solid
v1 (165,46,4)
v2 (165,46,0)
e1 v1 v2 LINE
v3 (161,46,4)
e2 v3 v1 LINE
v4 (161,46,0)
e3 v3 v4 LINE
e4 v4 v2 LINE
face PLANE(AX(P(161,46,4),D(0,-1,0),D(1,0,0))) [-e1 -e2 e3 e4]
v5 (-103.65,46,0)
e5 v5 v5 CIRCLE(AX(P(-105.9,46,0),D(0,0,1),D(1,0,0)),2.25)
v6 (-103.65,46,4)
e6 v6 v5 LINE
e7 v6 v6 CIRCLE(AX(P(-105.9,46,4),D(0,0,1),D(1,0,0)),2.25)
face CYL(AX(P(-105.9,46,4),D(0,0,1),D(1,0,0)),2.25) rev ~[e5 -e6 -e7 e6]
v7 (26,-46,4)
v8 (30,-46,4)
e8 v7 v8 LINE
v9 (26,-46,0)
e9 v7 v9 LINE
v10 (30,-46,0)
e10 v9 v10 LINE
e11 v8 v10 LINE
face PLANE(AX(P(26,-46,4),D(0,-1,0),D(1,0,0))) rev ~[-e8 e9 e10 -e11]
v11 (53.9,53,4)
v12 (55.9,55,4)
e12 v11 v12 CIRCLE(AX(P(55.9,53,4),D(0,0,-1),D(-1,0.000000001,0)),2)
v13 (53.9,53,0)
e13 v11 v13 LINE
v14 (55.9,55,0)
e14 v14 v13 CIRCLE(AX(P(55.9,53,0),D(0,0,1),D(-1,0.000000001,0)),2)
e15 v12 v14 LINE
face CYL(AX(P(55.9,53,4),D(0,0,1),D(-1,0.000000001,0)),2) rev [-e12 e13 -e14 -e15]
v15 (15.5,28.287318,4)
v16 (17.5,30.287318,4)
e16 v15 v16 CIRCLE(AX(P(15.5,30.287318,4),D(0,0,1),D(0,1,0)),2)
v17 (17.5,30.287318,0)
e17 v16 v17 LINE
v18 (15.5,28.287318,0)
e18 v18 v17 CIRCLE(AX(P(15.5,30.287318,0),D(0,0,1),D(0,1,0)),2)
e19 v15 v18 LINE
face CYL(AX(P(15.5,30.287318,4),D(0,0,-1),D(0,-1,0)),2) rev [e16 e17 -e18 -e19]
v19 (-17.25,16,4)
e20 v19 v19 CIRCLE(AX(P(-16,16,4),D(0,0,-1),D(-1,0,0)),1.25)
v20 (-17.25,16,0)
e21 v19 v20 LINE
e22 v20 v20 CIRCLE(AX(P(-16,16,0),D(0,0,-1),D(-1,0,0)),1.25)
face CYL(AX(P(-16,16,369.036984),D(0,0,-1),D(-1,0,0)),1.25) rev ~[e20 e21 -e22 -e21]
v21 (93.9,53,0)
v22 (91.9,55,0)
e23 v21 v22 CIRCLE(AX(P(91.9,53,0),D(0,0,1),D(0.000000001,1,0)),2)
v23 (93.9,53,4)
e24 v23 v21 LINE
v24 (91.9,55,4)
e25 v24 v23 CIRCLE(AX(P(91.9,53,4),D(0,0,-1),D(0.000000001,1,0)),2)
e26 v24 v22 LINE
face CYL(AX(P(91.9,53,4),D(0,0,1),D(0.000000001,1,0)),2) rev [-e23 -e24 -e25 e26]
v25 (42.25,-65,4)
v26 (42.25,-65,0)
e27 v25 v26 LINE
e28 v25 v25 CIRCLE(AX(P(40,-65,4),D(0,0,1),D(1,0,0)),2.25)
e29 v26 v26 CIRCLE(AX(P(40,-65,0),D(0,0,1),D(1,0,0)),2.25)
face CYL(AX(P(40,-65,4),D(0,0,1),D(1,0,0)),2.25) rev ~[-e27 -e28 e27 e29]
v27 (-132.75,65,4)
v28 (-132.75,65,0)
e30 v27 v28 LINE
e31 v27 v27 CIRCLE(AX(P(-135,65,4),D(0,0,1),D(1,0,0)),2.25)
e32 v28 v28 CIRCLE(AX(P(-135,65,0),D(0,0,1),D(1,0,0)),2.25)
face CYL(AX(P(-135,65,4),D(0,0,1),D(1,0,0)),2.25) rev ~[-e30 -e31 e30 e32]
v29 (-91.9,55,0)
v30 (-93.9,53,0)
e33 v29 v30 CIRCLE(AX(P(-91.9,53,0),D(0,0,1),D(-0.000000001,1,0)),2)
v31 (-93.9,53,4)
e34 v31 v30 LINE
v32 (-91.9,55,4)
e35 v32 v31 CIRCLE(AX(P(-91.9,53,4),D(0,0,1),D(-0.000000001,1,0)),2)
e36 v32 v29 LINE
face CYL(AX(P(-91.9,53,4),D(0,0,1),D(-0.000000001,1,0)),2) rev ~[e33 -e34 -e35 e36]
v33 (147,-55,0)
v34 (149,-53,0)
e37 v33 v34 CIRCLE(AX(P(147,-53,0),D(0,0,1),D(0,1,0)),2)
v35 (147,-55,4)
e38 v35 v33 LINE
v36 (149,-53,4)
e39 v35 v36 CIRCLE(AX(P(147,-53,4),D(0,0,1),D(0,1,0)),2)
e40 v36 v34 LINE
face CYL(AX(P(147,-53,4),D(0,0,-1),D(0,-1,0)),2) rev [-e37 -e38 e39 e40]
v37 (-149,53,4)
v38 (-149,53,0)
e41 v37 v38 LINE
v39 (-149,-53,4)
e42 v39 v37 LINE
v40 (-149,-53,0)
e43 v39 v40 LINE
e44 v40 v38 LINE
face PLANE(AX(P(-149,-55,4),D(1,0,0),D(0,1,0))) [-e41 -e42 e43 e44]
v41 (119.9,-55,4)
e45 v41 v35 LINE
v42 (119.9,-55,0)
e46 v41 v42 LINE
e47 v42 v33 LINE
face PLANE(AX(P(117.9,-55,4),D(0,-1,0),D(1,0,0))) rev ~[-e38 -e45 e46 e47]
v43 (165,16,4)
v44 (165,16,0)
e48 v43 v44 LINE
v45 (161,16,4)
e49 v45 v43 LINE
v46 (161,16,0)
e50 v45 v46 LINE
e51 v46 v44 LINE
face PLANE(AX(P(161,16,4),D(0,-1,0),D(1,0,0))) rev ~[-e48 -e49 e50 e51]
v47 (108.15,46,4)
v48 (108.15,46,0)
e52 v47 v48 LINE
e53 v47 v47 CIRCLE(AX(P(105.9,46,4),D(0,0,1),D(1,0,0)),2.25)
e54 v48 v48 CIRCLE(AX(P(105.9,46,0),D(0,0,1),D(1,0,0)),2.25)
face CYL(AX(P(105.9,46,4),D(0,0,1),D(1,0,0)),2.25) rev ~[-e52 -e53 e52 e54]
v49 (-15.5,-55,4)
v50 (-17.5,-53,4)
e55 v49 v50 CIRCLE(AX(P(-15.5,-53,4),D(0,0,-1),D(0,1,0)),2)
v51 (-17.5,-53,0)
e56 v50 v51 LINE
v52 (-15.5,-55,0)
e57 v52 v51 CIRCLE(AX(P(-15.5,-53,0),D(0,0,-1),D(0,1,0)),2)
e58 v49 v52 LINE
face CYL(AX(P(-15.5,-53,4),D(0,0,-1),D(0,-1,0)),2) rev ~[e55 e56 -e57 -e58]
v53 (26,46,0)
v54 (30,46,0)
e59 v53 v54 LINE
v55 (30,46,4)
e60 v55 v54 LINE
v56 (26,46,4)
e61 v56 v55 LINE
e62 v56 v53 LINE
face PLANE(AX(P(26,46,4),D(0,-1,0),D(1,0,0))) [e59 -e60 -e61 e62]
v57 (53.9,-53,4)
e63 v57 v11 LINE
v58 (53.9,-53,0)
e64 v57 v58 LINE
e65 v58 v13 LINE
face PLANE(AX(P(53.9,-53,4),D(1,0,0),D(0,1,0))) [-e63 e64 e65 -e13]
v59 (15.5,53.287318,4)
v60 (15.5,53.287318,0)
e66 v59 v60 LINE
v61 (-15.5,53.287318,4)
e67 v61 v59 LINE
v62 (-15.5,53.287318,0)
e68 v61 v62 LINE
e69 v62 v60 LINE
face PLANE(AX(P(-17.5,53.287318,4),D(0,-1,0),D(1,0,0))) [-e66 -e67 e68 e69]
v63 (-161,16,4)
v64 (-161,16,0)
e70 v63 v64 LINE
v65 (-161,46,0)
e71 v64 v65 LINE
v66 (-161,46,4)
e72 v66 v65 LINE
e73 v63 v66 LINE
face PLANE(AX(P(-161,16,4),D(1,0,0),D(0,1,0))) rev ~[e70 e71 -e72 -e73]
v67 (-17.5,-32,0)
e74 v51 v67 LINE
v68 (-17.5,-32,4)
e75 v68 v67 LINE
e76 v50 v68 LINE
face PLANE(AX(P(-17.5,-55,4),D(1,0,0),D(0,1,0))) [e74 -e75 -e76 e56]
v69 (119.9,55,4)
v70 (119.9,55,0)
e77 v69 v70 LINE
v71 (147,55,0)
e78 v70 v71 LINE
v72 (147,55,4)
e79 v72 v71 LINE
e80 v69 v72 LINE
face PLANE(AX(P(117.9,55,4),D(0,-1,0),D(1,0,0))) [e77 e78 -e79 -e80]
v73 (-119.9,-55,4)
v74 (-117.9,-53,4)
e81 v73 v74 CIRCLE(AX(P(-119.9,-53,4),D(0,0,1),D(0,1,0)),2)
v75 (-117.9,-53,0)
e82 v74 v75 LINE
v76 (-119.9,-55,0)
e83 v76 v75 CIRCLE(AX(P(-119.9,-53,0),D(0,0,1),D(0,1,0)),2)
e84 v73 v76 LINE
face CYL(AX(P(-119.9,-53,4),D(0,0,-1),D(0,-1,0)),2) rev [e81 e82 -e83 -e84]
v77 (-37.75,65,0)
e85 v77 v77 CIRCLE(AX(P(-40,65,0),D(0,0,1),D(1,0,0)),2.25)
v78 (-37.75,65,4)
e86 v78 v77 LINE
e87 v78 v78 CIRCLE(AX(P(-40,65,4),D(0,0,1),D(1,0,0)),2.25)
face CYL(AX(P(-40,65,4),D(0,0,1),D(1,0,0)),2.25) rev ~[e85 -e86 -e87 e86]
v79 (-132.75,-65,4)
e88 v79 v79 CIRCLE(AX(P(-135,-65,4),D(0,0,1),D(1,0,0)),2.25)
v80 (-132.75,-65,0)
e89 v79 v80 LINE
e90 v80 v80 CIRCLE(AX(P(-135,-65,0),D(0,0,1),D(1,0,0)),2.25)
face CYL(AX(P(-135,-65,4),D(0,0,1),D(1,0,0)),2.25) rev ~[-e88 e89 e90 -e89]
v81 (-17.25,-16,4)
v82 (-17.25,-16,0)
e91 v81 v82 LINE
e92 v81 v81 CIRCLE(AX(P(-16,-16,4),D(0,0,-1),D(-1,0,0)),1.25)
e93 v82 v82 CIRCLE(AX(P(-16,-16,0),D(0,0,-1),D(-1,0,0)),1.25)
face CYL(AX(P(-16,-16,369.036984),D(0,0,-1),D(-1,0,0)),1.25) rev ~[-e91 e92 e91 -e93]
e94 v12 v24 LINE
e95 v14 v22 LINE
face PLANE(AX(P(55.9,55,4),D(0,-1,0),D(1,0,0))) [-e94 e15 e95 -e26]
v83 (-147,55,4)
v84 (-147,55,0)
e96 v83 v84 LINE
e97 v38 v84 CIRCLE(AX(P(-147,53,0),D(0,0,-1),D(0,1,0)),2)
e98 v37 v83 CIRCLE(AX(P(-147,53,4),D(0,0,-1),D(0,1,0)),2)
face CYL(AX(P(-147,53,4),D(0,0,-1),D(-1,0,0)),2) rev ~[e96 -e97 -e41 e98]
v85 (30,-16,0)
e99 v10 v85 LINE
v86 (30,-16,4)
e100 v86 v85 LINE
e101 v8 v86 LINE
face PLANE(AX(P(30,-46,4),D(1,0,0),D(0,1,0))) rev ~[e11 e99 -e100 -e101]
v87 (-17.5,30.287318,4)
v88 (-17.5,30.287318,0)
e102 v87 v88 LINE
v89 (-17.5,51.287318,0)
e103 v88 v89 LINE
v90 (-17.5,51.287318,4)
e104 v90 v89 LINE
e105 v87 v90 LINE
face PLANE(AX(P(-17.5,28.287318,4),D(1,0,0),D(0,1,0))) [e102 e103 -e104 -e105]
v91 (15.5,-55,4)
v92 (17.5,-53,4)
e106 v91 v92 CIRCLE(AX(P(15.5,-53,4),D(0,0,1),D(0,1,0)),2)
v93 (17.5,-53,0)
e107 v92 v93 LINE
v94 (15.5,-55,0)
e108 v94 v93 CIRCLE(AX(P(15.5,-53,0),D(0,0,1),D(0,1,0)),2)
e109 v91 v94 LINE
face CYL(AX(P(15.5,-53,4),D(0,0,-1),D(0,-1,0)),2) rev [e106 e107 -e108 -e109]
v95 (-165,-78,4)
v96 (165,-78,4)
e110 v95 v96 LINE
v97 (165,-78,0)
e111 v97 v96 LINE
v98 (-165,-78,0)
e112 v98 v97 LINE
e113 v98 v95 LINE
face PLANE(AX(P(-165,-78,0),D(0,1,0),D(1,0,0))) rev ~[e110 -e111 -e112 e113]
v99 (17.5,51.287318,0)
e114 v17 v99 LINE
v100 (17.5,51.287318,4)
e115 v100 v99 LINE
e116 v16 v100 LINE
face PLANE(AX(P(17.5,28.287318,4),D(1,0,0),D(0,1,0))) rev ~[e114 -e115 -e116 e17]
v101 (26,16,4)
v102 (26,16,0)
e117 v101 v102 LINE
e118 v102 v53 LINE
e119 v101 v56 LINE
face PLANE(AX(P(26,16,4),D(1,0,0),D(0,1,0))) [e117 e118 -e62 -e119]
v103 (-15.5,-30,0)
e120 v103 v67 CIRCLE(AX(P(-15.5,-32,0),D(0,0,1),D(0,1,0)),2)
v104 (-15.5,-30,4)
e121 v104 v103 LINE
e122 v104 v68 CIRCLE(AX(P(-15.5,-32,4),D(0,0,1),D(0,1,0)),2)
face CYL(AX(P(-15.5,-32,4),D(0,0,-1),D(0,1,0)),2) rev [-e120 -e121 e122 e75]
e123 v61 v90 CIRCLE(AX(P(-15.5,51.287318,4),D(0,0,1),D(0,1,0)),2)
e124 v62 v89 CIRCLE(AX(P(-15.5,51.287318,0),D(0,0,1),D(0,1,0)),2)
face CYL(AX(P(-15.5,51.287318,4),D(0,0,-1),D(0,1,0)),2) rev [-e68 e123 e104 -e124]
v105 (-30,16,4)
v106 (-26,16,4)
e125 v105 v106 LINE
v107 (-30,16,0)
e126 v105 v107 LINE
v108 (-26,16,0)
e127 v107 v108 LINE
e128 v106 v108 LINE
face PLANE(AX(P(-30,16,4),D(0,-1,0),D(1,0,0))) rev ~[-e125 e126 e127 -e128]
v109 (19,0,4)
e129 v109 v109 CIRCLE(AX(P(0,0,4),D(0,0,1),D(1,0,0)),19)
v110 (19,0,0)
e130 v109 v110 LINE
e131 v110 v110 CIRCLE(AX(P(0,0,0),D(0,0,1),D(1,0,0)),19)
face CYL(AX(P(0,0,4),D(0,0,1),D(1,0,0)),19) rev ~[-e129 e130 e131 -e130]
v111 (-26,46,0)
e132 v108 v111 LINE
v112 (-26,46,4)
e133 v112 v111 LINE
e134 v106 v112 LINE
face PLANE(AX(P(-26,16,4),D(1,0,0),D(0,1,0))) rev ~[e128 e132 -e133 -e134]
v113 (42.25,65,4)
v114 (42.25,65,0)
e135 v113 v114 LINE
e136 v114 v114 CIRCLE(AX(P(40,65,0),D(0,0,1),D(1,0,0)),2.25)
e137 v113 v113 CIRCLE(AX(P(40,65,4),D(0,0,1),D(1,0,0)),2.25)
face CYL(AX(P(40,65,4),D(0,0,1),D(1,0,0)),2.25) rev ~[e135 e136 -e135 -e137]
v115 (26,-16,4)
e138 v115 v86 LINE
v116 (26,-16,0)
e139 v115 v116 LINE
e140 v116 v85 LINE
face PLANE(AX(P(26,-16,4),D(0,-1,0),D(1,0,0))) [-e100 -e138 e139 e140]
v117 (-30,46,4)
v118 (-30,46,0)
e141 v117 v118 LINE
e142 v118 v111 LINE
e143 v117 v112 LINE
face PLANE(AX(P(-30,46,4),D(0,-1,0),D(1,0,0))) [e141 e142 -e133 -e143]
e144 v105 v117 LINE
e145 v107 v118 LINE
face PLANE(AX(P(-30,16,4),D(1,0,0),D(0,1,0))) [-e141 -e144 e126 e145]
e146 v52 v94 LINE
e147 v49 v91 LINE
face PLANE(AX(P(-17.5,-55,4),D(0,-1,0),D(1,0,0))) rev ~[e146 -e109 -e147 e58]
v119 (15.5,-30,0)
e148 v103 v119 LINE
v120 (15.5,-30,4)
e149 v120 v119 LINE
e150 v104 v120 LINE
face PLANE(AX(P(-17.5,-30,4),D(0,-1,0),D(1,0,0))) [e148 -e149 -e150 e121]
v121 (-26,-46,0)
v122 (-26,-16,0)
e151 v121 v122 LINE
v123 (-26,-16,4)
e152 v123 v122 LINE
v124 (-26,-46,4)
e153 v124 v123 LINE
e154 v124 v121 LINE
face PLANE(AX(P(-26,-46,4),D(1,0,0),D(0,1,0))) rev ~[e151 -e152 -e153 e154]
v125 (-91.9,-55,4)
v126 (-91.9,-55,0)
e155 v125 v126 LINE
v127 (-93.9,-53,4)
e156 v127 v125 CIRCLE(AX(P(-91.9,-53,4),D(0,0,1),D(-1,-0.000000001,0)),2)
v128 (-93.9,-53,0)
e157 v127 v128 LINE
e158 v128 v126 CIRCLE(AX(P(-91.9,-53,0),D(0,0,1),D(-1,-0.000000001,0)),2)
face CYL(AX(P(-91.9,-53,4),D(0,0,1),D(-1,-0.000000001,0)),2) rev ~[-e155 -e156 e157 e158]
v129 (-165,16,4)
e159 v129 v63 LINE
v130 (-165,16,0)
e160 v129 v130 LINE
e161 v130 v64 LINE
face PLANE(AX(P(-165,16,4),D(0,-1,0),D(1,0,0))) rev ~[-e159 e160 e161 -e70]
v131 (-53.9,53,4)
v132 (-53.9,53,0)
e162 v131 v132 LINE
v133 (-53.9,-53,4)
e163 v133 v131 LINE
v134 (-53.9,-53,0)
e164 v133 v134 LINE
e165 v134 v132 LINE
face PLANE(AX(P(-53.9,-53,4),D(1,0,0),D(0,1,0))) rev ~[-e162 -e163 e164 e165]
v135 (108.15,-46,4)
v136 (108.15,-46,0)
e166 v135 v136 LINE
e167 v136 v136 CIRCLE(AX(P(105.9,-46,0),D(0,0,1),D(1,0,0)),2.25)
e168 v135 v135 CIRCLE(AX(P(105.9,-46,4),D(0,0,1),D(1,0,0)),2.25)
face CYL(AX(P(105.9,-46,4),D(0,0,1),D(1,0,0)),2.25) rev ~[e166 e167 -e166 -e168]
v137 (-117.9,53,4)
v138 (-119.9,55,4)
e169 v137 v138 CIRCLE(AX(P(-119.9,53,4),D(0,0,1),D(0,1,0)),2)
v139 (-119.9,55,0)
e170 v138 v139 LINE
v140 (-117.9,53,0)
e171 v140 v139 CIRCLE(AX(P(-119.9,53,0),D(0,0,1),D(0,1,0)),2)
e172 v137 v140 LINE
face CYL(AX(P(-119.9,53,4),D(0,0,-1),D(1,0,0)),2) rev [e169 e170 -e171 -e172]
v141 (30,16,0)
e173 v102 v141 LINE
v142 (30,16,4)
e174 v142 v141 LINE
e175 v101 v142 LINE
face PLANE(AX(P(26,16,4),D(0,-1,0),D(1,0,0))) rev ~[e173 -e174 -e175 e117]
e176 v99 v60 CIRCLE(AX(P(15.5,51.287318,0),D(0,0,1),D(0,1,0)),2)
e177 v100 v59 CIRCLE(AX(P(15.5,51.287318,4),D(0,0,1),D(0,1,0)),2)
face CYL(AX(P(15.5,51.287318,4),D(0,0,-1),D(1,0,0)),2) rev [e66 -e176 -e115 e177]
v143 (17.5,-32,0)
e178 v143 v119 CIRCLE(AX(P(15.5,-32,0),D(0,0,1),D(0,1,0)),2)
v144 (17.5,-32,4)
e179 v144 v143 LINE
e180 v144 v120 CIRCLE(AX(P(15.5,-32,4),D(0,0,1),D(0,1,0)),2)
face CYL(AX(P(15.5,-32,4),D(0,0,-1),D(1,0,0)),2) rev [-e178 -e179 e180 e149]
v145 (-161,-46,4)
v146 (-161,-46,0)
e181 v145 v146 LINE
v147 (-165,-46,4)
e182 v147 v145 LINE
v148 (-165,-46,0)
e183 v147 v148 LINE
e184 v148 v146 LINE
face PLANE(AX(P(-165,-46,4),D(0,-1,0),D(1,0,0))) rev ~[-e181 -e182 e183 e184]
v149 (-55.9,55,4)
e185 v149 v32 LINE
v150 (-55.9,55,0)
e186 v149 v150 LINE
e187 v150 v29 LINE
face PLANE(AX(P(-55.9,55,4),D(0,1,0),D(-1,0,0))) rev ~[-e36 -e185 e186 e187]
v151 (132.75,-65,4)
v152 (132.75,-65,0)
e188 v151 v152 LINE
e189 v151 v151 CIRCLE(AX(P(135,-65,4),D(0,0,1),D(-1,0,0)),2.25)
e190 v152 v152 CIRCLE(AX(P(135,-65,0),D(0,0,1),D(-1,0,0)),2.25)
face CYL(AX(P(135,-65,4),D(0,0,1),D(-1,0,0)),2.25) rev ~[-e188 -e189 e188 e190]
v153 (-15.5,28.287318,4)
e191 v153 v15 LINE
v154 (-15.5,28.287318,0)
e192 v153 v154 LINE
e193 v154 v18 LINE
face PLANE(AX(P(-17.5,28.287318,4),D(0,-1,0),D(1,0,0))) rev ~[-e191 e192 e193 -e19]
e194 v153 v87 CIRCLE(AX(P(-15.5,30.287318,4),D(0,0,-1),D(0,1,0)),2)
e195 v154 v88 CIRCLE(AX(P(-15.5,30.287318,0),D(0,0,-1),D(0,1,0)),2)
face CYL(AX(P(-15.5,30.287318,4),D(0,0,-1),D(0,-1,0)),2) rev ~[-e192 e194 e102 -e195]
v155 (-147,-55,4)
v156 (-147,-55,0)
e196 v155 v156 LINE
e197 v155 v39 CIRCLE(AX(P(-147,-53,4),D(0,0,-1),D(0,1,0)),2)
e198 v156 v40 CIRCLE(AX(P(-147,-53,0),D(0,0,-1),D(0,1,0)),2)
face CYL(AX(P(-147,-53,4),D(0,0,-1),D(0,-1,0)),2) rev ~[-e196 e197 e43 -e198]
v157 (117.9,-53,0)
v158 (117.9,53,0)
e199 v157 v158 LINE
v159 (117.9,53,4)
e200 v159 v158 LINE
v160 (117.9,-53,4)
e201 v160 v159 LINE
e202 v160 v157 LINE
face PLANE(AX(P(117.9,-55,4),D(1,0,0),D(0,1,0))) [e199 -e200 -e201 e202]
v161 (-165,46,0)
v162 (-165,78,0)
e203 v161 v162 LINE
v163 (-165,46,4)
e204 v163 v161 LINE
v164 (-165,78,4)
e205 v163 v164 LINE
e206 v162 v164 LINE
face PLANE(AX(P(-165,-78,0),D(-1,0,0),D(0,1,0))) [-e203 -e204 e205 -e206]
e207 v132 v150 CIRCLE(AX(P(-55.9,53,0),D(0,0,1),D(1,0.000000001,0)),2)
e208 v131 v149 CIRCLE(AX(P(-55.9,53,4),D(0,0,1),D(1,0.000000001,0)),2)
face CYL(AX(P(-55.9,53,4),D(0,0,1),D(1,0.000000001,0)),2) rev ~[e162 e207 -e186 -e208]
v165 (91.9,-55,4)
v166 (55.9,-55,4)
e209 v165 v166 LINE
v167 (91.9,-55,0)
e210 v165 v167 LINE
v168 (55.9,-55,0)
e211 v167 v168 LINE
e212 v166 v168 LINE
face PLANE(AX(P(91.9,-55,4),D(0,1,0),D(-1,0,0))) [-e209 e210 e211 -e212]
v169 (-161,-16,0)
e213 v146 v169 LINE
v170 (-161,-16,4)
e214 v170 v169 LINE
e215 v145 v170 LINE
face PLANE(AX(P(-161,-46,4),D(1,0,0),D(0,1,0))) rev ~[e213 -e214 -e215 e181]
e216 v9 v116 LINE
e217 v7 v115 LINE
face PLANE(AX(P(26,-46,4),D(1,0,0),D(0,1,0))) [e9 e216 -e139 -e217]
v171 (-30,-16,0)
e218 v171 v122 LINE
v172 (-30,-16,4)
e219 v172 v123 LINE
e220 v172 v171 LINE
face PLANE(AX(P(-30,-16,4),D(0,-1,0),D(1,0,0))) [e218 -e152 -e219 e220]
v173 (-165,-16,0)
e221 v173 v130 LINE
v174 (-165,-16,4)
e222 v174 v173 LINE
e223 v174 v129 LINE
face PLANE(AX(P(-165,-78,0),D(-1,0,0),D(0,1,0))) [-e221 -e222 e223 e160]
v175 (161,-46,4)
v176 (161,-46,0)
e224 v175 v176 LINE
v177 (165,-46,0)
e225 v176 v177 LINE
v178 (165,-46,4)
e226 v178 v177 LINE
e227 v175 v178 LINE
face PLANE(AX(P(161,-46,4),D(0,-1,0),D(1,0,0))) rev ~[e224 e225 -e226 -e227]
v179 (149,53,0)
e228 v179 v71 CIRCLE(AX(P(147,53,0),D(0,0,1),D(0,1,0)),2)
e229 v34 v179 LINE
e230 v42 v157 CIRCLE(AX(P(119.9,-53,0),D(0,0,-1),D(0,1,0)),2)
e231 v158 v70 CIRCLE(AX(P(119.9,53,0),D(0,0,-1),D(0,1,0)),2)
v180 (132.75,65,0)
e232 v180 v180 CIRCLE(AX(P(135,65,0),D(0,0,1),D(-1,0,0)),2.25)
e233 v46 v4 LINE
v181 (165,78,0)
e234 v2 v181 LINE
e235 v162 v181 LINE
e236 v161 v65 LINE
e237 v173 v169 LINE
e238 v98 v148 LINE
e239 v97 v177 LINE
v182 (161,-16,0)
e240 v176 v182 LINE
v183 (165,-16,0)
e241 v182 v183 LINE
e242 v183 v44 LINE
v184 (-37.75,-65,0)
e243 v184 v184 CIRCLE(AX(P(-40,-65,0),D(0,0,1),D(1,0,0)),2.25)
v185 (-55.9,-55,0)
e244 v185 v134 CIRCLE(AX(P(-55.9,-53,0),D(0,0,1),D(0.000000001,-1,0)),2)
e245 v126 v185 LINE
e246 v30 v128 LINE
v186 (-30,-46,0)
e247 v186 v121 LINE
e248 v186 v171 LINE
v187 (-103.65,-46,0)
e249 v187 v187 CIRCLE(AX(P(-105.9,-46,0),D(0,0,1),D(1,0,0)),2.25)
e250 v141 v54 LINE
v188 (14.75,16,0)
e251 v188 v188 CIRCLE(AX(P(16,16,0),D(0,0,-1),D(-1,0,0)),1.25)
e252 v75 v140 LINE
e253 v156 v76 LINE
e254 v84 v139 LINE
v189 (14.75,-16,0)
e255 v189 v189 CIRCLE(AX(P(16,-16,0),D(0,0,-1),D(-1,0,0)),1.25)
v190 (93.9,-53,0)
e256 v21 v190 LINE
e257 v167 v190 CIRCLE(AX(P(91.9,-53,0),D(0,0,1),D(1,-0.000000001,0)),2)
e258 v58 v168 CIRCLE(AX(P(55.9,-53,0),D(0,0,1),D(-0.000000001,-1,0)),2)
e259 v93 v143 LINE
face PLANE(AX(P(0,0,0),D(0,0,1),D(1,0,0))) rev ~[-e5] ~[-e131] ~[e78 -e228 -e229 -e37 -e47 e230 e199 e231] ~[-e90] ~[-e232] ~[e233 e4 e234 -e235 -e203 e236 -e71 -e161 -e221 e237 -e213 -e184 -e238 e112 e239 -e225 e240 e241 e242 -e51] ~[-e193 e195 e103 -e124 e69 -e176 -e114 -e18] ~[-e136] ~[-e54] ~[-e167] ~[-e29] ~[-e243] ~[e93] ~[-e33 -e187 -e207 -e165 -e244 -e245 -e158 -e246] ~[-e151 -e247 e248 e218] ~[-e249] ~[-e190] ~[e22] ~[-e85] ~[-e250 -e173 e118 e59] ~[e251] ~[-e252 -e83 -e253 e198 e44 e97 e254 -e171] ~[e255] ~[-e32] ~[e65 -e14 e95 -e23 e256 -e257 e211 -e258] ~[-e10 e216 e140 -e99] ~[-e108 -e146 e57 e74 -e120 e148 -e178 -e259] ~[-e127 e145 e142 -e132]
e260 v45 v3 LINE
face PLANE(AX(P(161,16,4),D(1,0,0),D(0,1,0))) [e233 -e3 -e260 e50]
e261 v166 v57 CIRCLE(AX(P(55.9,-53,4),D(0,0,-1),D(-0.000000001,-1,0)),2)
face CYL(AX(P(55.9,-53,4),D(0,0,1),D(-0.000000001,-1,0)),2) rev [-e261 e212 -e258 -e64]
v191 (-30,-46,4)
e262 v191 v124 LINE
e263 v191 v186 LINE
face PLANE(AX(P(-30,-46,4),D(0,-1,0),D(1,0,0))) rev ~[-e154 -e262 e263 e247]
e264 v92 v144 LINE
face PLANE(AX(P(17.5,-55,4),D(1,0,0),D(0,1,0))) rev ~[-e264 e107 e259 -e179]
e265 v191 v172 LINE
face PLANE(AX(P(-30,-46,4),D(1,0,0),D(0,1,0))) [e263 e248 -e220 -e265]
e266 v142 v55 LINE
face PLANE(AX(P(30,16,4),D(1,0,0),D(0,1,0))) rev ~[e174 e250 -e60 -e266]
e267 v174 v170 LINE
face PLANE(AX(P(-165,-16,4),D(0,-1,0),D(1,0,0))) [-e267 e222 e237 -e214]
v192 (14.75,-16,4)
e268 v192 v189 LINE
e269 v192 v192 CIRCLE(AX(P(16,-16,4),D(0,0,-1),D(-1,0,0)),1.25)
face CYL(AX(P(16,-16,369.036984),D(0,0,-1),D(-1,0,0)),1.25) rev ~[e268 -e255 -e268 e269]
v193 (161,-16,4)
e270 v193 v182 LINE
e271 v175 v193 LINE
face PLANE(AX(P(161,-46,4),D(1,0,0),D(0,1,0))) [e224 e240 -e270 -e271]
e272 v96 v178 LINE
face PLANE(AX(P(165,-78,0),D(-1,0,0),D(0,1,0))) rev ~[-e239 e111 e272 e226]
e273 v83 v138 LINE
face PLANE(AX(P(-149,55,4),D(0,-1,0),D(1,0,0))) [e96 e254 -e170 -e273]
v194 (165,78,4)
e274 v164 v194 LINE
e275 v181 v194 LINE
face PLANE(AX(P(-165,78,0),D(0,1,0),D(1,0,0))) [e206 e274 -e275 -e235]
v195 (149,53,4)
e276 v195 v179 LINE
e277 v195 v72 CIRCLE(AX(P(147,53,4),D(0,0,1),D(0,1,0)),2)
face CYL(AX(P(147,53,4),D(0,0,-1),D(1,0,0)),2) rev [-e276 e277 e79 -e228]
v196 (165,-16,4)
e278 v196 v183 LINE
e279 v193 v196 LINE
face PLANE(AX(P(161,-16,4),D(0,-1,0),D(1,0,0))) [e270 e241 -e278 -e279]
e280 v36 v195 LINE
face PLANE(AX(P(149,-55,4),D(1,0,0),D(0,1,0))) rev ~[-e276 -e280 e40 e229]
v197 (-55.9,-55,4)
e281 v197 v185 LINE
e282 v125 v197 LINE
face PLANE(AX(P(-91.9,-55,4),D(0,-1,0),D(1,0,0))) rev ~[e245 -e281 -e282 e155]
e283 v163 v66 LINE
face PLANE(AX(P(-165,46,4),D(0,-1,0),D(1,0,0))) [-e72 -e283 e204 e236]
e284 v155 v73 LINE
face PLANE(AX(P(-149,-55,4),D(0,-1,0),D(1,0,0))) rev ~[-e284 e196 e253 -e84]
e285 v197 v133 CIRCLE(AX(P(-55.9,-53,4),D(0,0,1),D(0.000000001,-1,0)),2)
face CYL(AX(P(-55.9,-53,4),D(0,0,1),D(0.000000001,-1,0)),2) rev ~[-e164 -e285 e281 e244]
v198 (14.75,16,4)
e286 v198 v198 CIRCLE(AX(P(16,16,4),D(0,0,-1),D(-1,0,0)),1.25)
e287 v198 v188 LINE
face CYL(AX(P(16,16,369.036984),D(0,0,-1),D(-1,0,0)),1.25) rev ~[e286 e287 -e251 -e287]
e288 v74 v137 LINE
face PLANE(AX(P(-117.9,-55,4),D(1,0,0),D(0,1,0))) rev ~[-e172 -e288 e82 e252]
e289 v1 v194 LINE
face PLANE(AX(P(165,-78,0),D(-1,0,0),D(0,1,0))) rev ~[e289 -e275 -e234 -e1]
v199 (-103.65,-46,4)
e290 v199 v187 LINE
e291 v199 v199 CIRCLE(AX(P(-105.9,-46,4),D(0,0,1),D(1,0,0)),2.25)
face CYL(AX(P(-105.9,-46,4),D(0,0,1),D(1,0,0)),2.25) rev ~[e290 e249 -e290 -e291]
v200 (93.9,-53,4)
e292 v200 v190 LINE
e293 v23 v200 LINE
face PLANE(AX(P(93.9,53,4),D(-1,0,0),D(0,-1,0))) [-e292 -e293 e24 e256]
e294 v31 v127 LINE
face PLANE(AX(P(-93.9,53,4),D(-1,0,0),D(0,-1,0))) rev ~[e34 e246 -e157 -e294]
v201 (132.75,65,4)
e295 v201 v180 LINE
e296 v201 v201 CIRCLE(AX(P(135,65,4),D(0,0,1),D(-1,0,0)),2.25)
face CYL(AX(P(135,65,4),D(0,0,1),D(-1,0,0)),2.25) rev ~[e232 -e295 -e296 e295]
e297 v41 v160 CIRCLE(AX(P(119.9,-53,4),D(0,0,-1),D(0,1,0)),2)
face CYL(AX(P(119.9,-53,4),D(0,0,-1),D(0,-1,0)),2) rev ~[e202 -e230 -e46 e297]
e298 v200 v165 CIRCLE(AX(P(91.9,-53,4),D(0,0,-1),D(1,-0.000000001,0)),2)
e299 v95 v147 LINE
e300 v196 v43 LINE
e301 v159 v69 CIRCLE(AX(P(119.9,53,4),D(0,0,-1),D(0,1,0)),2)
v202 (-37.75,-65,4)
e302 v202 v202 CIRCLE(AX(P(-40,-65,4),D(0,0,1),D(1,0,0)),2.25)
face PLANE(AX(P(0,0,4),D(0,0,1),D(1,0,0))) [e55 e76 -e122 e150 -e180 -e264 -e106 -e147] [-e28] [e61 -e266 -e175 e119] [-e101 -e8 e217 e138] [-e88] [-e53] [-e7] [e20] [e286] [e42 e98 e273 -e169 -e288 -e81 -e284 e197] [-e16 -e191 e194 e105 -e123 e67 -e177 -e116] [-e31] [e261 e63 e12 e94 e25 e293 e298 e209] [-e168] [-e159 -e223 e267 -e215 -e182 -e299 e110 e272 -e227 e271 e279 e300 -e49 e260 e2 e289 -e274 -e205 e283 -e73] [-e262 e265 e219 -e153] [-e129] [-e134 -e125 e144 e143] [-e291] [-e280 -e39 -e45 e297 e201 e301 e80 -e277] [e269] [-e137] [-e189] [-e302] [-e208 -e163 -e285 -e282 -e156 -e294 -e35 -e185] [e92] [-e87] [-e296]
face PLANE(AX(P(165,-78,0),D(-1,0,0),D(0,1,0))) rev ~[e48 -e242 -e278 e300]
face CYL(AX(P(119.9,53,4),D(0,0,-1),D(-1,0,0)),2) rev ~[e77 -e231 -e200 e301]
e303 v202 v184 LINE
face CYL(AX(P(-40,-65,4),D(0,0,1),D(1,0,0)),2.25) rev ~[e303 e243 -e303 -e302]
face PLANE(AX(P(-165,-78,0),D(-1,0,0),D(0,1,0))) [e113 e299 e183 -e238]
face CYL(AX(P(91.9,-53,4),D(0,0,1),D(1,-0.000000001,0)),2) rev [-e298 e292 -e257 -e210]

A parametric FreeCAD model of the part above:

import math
import FreeCAD as App
import Part
import Sketcher

V = App.Vector


def edges_at(feature, points):
    """Names of the edges that pass closest to the given points."""
    edges = feature.Shape.Edges
    near = lambda p: min(range(len(edges)), key=lambda i: edges[i].distToShape(Part.Vertex(*p))[0])
    return sorted({f"Edge{near(p) + 1}" for p in points})

doc = App.newDocument("Part")
body = doc.addObject("PartDesign::Body", "Body")

# Sketch on XY plane
sketch1 = body.newObject("Sketcher::SketchObject", "Sketch")
sketch1.AttachmentSupport = (doc.getObject("XY_Plane"), [""])
sketch1.MapMode = "FlatFace"
sketch1.addGeometry(Part.LineSegment(V(-165, 78, 0), V(-165, -78, 0)), False)
sketch1.addGeometry(Part.LineSegment(V(-165, -78, 0), V(165, -78, 0)), False)
sketch1.addGeometry(Part.LineSegment(V(165, -78, 0), V(165, 78, 0)), False)
sketch1.addGeometry(Part.LineSegment(V(165, 78, 0), V(-165, 78, 0)), False)
sketch1.addConstraint(Sketcher.Constraint("Coincident", 0, 2, 1, 1))
sketch1.addConstraint(Sketcher.Constraint("Coincident", 1, 2, 2, 1))
sketch1.addConstraint(Sketcher.Constraint("Coincident", 2, 2, 3, 1))
sketch1.addConstraint(Sketcher.Constraint("Coincident", 3, 2, 0, 1))
sketch1.addConstraint(Sketcher.Constraint("Vertical", 0))
sketch1.addConstraint(Sketcher.Constraint("Horizontal", 1))
sketch1.addConstraint(Sketcher.Constraint("Vertical", 2))
sketch1.addConstraint(Sketcher.Constraint("Horizontal", 3))
sketch1.addConstraint(Sketcher.Constraint("Symmetric", 0, 2, 2, 2, -1, 1))
sketch1.addConstraint(Sketcher.Constraint("DistanceX", 1, 1, 1, 2, 330.0))
sketch1.addConstraint(Sketcher.Constraint("DistanceY", 0, 2, 0, 1, 156.0))
pad1 = body.newObject("PartDesign::Pad", "Pad")
pad1.Profile = sketch1
pad1.Length = 4

# Sketch on XY plane
sketch2 = body.newObject("Sketcher::SketchObject", "Sketch001")
sketch2.AttachmentSupport = (doc.getObject("XY_Plane"), [""])
sketch2.MapMode = "FlatFace"
sketch2.AttachmentOffset = App.Placement(V(0, 0, 4), App.Rotation())
sketch2.addGeometry(Part.Circle(V(-105.9, 46, 0), V(0, 0, 1), 2.2), False)
sketch2.addGeometry(Part.Circle(V(-105.9, -46, 0), V(0, 0, 1), 2.2), False)
sketch2.addGeometry(Part.Circle(V(105.9, -46, 0), V(0, 0, 1), 2.2), False)
sketch2.addGeometry(Part.Circle(V(105.9, 46, 0), V(0, 0, 1), 2.2), False)
sketch2.addGeometry(Part.Circle(V(-40, 65, 0), V(0, 0, 1), 2.2), False)
sketch2.addGeometry(Part.Circle(V(40, 65, 0), V(0, 0, 1), 2.2), False)
sketch2.addGeometry(Part.Circle(V(-40, -65, 0), V(0, 0, 1), 2.2), False)
sketch2.addGeometry(Part.Circle(V(40, -65, 0), V(0, 0, 1), 2.2), False)
sketch2.addGeometry(Part.Circle(V(-135, -65, 0), V(0, 0, 1), 2.2), False)
sketch2.addGeometry(Part.Circle(V(-135, 65, 0), V(0, 0, 1), 2.2), False)
sketch2.addGeometry(Part.Circle(V(135, -65, 0), V(0, 0, 1), 2.2), False)
sketch2.addGeometry(Part.Circle(V(135, 65, 0), V(0, 0, 1), 2.2), False)
sketch2.addGeometry(Part.LineSegment(V(117.9, 55, 0), V(117.9, -55, 0)), False)
sketch2.addGeometry(Part.LineSegment(V(117.9, -55, 0), V(149, -55, 0)), False)
sketch2.addGeometry(Part.LineSegment(V(149, -55, 0), V(149, 55, 0)), False)
sketch2.addGeometry(Part.LineSegment(V(149, 55, 0), V(117.9, 55, 0)), False)
sketch2.addGeometry(Part.LineSegment(V(-149, 55, 0), V(-149, -55, 0)), False)
sketch2.addGeometry(Part.LineSegment(V(-149, -55, 0), V(-117.9, -55, 0)), False)
sketch2.addGeometry(Part.LineSegment(V(-117.9, -55, 0), V(-117.9, 55, 0)), False)
sketch2.addGeometry(Part.LineSegment(V(-117.9, 55, 0), V(-149, 55, 0)), False)
sketch2.addConstraint(Sketcher.Constraint("Coincident", 12, 2, 13, 1))
sketch2.addConstraint(Sketcher.Constraint("Coincident", 13, 2, 14, 1))
sketch2.addConstraint(Sketcher.Constraint("Coincident", 14, 2, 15, 1))
sketch2.addConstraint(Sketcher.Constraint("Coincident", 15, 2, 12, 1))
sketch2.addConstraint(Sketcher.Constraint("Coincident", 16, 2, 17, 1))
sketch2.addConstraint(Sketcher.Constraint("Coincident", 17, 2, 18, 1))
sketch2.addConstraint(Sketcher.Constraint("Coincident", 18, 2, 19, 1))
sketch2.addConstraint(Sketcher.Constraint("Coincident", 19, 2, 16, 1))
sketch2.addConstraint(Sketcher.Constraint("Vertical", 12))
sketch2.addConstraint(Sketcher.Constraint("Horizontal", 13))
sketch2.addConstraint(Sketcher.Constraint("Vertical", 14))
sketch2.addConstraint(Sketcher.Constraint("Horizontal", 15))
sketch2.addConstraint(Sketcher.Constraint("Vertical", 16))
sketch2.addConstraint(Sketcher.Constraint("Horizontal", 17))
sketch2.addConstraint(Sketcher.Constraint("Vertical", 18))
sketch2.addConstraint(Sketcher.Constraint("Horizontal", 19))
sketch2.addConstraint(Sketcher.Constraint("Equal", 0, 1))
sketch2.addConstraint(Sketcher.Constraint("Equal", 1, 2))
sketch2.addConstraint(Sketcher.Constraint("Equal", 2, 3))
sketch2.addConstraint(Sketcher.Constraint("Equal", 3, 4))
sketch2.addConstraint(Sketcher.Constraint("Equal", 4, 5))
sketch2.addConstraint(Sketcher.Constraint("Equal", 5, 6))
sketch2.addConstraint(Sketcher.Constraint("Equal", 6, 7))
sketch2.addConstraint(Sketcher.Constraint("Equal", 7, 8))
sketch2.addConstraint(Sketcher.Constraint("Equal", 8, 9))
sketch2.addConstraint(Sketcher.Constraint("Equal", 9, 10))
sketch2.addConstraint(Sketcher.Constraint("Equal", 10, 11))
sketch2.addConstraint(Sketcher.Constraint("Symmetric", 0, 3, 2, 3, -1, 1))
sketch2.addConstraint(Sketcher.Constraint("Symmetric", 1, 3, 3, 3, -1, 1))
sketch2.addConstraint(Sketcher.Constraint("Symmetric", 5, 3, 6, 3, -1, 1))
sketch2.addConstraint(Sketcher.Constraint("Symmetric", 4, 3, 7, 3, -1, 1))
sketch2.addConstraint(Sketcher.Constraint("Symmetric", 9, 3, 10, 3, -1, 1))
sketch2.addConstraint(Sketcher.Constraint("Symmetric", 8, 3, 11, 3, -1, 1))
sketch2.addConstraint(Sketcher.Constraint("Symmetric", 14, 2, 16, 2, -1, 1))
sketch2.addConstraint(Sketcher.Constraint("Symmetric", 12, 2, 18, 2, -1, 1))
sketch2.addConstraint(Sketcher.Constraint("Symmetric", 1, 3, 2, 3, -2))
sketch2.addConstraint(Sketcher.Constraint("Symmetric", 4, 3, 5, 3, -2))
sketch2.addConstraint(Sketcher.Constraint("Symmetric", 8, 3, 10, 3, -2))
sketch2.addConstraint(Sketcher.Constraint("Horizontal", 7, 3, 8, 3))
sketch2.addConstraint(Sketcher.Constraint("Horizontal", 13, 2, 16, 2))
sketch2.addConstraint(Sketcher.Constraint("Diameter", 0, 4.5))
sketch2.addConstraint(Sketcher.Constraint("DistanceY", 12, 2, 12, 1, 110.0))
sketch2.addConstraint(Sketcher.Constraint("DistanceX", 13, 1, 13, 2, 31.1))
sketch2.addConstraint(Sketcher.Constraint("DistanceY", -1, 1, 0, 3, 46.0))
sketch2.addConstraint(Sketcher.Constraint("DistanceX", 4, 3, -1, 1, 40.0))
sketch2.addConstraint(Sketcher.Constraint("DistanceY", -1, 1, 4, 3, 65.0))
sketch2.addConstraint(Sketcher.Constraint("DistanceX", 8, 3, -1, 1, 135.0))
sketch2.addConstraint(Sketcher.Constraint("DistanceX", -1, 1, 13, 2, 149.0))
sketch2.addConstraint(Sketcher.Constraint("DistanceX", 2, 3, 12, 2, 12.0))
pocket1 = body.newObject("PartDesign::Pocket", "Pocket")
pocket1.Profile = sketch2
pocket1.Type = "ThroughAll"

# Sketch on XY plane
sketch3 = body.newObject("Sketcher::SketchObject", "Sketch002")
sketch3.AttachmentSupport = (doc.getObject("XY_Plane"), [""])
sketch3.MapMode = "FlatFace"
sketch3.AttachmentOffset = App.Placement(V(0, 0, 4), App.Rotation())
sketch3.addGeometry(Part.Circle(V(16, -16, 0), V(0, 0, 1), 1.2), False)
sketch3.addGeometry(Part.Circle(V(0, 0, 0), V(0, 0, 1), 1.2), False)
sketch3.addGeometry(Part.Circle(V(16, 16, 0), V(0, 0, 1), 1.2), False)
sketch3.addGeometry(Part.Circle(V(-16, -16, 0), V(0, 0, 1), 1.2), False)
sketch3.addGeometry(Part.Circle(V(-16, 16, 0), V(0, 0, 1), 1.2), False)
sketch3.addConstraint(Sketcher.Constraint("Coincident", 1, 3, -1, 1))
sketch3.addConstraint(Sketcher.Constraint("Equal", 0, 1))
sketch3.addConstraint(Sketcher.Constraint("Equal", 1, 2))
sketch3.addConstraint(Sketcher.Constraint("Equal", 2, 3))
sketch3.addConstraint(Sketcher.Constraint("Equal", 3, 4))
sketch3.addConstraint(Sketcher.Constraint("Symmetric", 2, 3, 3, 3, -1, 1))
sketch3.addConstraint(Sketcher.Constraint("Symmetric", 0, 3, 4, 3, -1, 1))
sketch3.addConstraint(Sketcher.Constraint("Symmetric", 0, 3, 3, 3, -2))
sketch3.addConstraint(Sketcher.Constraint("Diameter", 0, 2.5))
sketch3.addConstraint(Sketcher.Constraint("DistanceX", -1, 1, 0, 3, 16.0))
sketch3.addConstraint(Sketcher.Constraint("DistanceY", 0, 3, -1, 1, 16.0))
doc.recompute()
hole = body.newObject("PartDesign::Hole", "Hole")
hole.Profile = sketch3
hole.ThreadType = "None"
hole.Diameter = 2.5
hole.DepthType = "ThroughAll"

# Sketch on XY plane
sketch4 = body.newObject("Sketcher::SketchObject", "Sketch003")
sketch4.AttachmentSupport = (doc.getObject("XY_Plane"), [""])
sketch4.MapMode = "FlatFace"
sketch4.AttachmentOffset = App.Placement(V(0, 0, 4), App.Rotation())
sketch4.addGeometry(Part.Circle(V(0, 0, 0), V(0, 0, 1), 19), False)
sketch4.addConstraint(Sketcher.Constraint("Coincident", 0, 3, -1, 1))
sketch4.addConstraint(Sketcher.Constraint("Diameter", 0, 38.0))
pocket2 = body.newObject("PartDesign::Pocket", "Pocket001")
pocket2.Profile = sketch4
pocket2.Type = "ThroughAll"

# Sketch on XY plane
sketch5 = body.newObject("Sketcher::SketchObject", "Sketch004")
sketch5.AttachmentSupport = (doc.getObject("XY_Plane"), [""])
sketch5.MapMode = "FlatFace"
sketch5.AttachmentOffset = App.Placement(V(0, 0, 4), App.Rotation())
sketch5.addGeometry(Part.LineSegment(V(-18, -30, 0), V(-18, -55, 0)), False)
sketch5.addGeometry(Part.LineSegment(V(-18, -55, 0), V(18, -55, 0)), False)
sketch5.addGeometry(Part.LineSegment(V(18, -55, 0), V(18, -30, 0)), False)
sketch5.addGeometry(Part.LineSegment(V(18, -30, 0), V(-18, -30, 0)), False)
sketch5.addGeometry(Part.LineSegment(V(-18, 53, 0), V(-18, 28, 0)), False)
sketch5.addGeometry(Part.LineSegment(V(-18, 28, 0), V(18, 28, 0)), False)
sketch5.addGeometry(Part.LineSegment(V(18, 28, 0), V(18, 53, 0)), False)
sketch5.addGeometry(Part.LineSegment(V(18, 53, 0), V(-18, 53, 0)), False)
sketch5.addConstraint(Sketcher.Constraint("Coincident", 0, 2, 1, 1))
sketch5.addConstraint(Sketcher.Constraint("Coincident", 1, 2, 2, 1))
sketch5.addConstraint(Sketcher.Constraint("Coincident", 2, 2, 3, 1))
sketch5.addConstraint(Sketcher.Constraint("Coincident", 3, 2, 0, 1))
sketch5.addConstraint(Sketcher.Constraint("Coincident", 4, 2, 5, 1))
sketch5.addConstraint(Sketcher.Constraint("Coincident", 5, 2, 6, 1))
sketch5.addConstraint(Sketcher.Constraint("Coincident", 6, 2, 7, 1))
sketch5.addConstraint(Sketcher.Constraint("Coincident", 7, 2, 4, 1))
sketch5.addConstraint(Sketcher.Constraint("Vertical", 0))
sketch5.addConstraint(Sketcher.Constraint("Horizontal", 1))
sketch5.addConstraint(Sketcher.Constraint("Vertical", 2))
sketch5.addConstraint(Sketcher.Constraint("Horizontal", 3))
sketch5.addConstraint(Sketcher.Constraint("Vertical", 4))
sketch5.addConstraint(Sketcher.Constraint("Horizontal", 5))
sketch5.addConstraint(Sketcher.Constraint("Vertical", 6))
sketch5.addConstraint(Sketcher.Constraint("Horizontal", 7))
sketch5.addConstraint(Sketcher.Constraint("Vertical", 3, 2, 4, 2))
sketch5.addConstraint(Sketcher.Constraint("Vertical", 2, 2, 5, 2))
sketch5.addConstraint(Sketcher.Constraint("Equal", 2, 4))
sketch5.addConstraint(Sketcher.Constraint("DistanceX", 1, 1, 1, 2, 35.0))
sketch5.addConstraint(Sketcher.Constraint("DistanceY", 0, 2, 0, 1, 25.0))
sketch5.addConstraint(Sketcher.Constraint("DistanceY", 0, 2, -1, 1, 55.0))
sketch5.addConstraint(Sketcher.Constraint("DistanceX", 0, 2, -1, 1, 17.5))
sketch5.addConstraint(Sketcher.Constraint("DistanceY", -1, 1, 4, 2, 28.287318))
pocket3 = body.newObject("PartDesign::Pocket", "Pocket002")
pocket3.Profile = sketch5
pocket3.Type = "ThroughAll"
doc.recompute()

fillet = body.newObject("PartDesign::Fillet", "Fillet")
fillet.Base = (pocket3, edges_at(pocket3, [
    (-17.5, 28.287, 2),
    (-17.5, 53.287, 2),
    (17.5, 53.287, 2),
    (17.5, 28.287, 2),
    (17.5, -30, 2),
    (17.5, -55, 2),
    (-17.5, -55, 2),
    (-17.5, -30, 2),
    (149, 55, 2),
    (149, -55, 2),
    (117.9, -55, 2),
    (117.9, 55, 2),
    (-149, -55, 2),
    (-149, 55, 2),
    (-117.9, 55, 2),
    (-117.9, -55, 2),
]))
fillet.Radius = 2

# Sketch on XY plane
sketch6 = body.newObject("Sketcher::SketchObject", "Sketch005")
sketch6.AttachmentSupport = (doc.getObject("XY_Plane"), [""])
sketch6.MapMode = "FlatFace"
sketch6.AttachmentOffset = App.Placement(V(0, 0, 4), App.Rotation())
sketch6.addGeometry(Part.ArcOfCircle(Part.Circle(V(-91.9, -53, 0), V(0, 0, 1), 2), math.radians(-180), math.radians(-90)), False)
sketch6.addGeometry(Part.LineSegment(V(-91.9, -55, 0), V(-55.9, -55, 0)), False)
sketch6.addGeometry(Part.ArcOfCircle(Part.Circle(V(-55.9, -53, 0), V(0, 0, 1), 2), math.radians(-90), math.radians(0)), False)
sketch6.addGeometry(Part.LineSegment(V(-53.9, -53, 0), V(-53.9, 53, 0)), False)
sketch6.addGeometry(Part.ArcOfCircle(Part.Circle(V(-55.9, 53, 0), V(0, 0, 1), 2), math.radians(0), math.radians(90)), False)
sketch6.addGeometry(Part.LineSegment(V(-55.9, 55, 0), V(-91.9, 55, 0)), False)
sketch6.addGeometry(Part.ArcOfCircle(Part.Circle(V(-91.9, 53, 0), V(0, 0, 1), 2), math.radians(90), math.radians(180)), False)
sketch6.addGeometry(Part.LineSegment(V(-93.9, 53, 0), V(-93.9, -53, 0)), False)
sketch6.addGeometry(Part.ArcOfCircle(Part.Circle(V(55.9, 53, 0), V(0, 0, 1), 2), math.radians(90), math.radians(180)), False)
sketch6.addGeometry(Part.LineSegment(V(53.9, 53, 0), V(53.9, -53, 0)), False)
sketch6.addGeometry(Part.ArcOfCircle(Part.Circle(V(55.9, -53, 0), V(0, 0, 1), 2), math.radians(-180), math.radians(-90)), False)
sketch6.addGeometry(Part.LineSegment(V(55.9, -55, 0), V(91.9, -55, 0)), False)
sketch6.addGeometry(Part.ArcOfCircle(Part.Circle(V(91.9, -53, 0), V(0, 0, 1), 2), math.radians(-90), math.radians(0)), False)
sketch6.addGeometry(Part.LineSegment(V(93.9, -53, 0), V(93.9, 53, 0)), False)
sketch6.addGeometry(Part.ArcOfCircle(Part.Circle(V(91.9, 53, 0), V(0, 0, 1), 2), math.radians(0), math.radians(90)), False)
sketch6.addGeometry(Part.LineSegment(V(91.9, 55, 0), V(55.9, 55, 0)), False)
sketch6.addConstraint(Sketcher.Constraint("Tangent", 0, 2, 1, 1))
sketch6.addConstraint(Sketcher.Constraint("Tangent", 1, 2, 2, 1))
sketch6.addConstraint(Sketcher.Constraint("Tangent", 2, 2, 3, 1))
sketch6.addConstraint(Sketcher.Constraint("Tangent", 3, 2, 4, 1))
sketch6.addConstraint(Sketcher.Constraint("Tangent", 4, 2, 5, 1))
sketch6.addConstraint(Sketcher.Constraint("Tangent", 5, 2, 6, 1))
sketch6.addConstraint(Sketcher.Constraint("Tangent", 6, 2, 7, 1))
sketch6.addConstraint(Sketcher.Constraint("Tangent", 7, 2, 0, 1))
sketch6.addConstraint(Sketcher.Constraint("Tangent", 8, 2, 9, 1))
sketch6.addConstraint(Sketcher.Constraint("Tangent", 9, 2, 10, 1))
sketch6.addConstraint(Sketcher.Constraint("Tangent", 10, 2, 11, 1))
sketch6.addConstraint(Sketcher.Constraint("Tangent", 11, 2, 12, 1))
sketch6.addConstraint(Sketcher.Constraint("Tangent", 12, 2, 13, 1))
sketch6.addConstraint(Sketcher.Constraint("Tangent", 13, 2, 14, 1))
sketch6.addConstraint(Sketcher.Constraint("Tangent", 14, 2, 15, 1))
sketch6.addConstraint(Sketcher.Constraint("Tangent", 15, 2, 8, 1))
sketch6.addConstraint(Sketcher.Constraint("Horizontal", 1))
sketch6.addConstraint(Sketcher.Constraint("Vertical", 3))
sketch6.addConstraint(Sketcher.Constraint("Horizontal", 5))
sketch6.addConstraint(Sketcher.Constraint("Vertical", 7))
sketch6.addConstraint(Sketcher.Constraint("Vertical", 9))
sketch6.addConstraint(Sketcher.Constraint("Horizontal", 11))
sketch6.addConstraint(Sketcher.Constraint("Vertical", 13))
sketch6.addConstraint(Sketcher.Constraint("Horizontal", 15))
sketch6.addConstraint(Sketcher.Constraint("Equal", 0, 2))
sketch6.addConstraint(Sketcher.Constraint("Equal", 2, 4))
sketch6.addConstraint(Sketcher.Constraint("Equal", 4, 6))
sketch6.addConstraint(Sketcher.Constraint("Equal", 6, 8))
sketch6.addConstraint(Sketcher.Constraint("Equal", 8, 10))
sketch6.addConstraint(Sketcher.Constraint("Equal", 10, 12))
sketch6.addConstraint(Sketcher.Constraint("Equal", 12, 14))
sketch6.addConstraint(Sketcher.Constraint("Symmetric", 2, 3, 8, 3, -1, 1))
sketch6.addConstraint(Sketcher.Constraint("Symmetric", 6, 3, 12, 3, -1, 1))
sketch6.addConstraint(Sketcher.Constraint("Horizontal", 6, 3, 8, 3))
sketch6.addConstraint(Sketcher.Constraint("Radius", 0, 2.0))
sketch6.addConstraint(Sketcher.Constraint("DistanceX", 1, 1, 1, 2, 36.0))
sketch6.addConstraint(Sketcher.Constraint("DistanceY", 3, 1, 3, 2, 106.0))
sketch6.addConstraint(Sketcher.Constraint("DistanceX", 0, 3, -1, 1, 91.9))
pocket4 = body.newObject("PartDesign::Pocket", "Pocket003")
pocket4.Profile = sketch6
pocket4.Type = "ThroughAll"

# Sketch on XY plane
sketch7 = body.newObject("Sketcher::SketchObject", "Sketch006")
sketch7.AttachmentSupport = (doc.getObject("XY_Plane"), [""])
sketch7.MapMode = "FlatFace"
sketch7.AttachmentOffset = App.Placement(V(0, 0, 4), App.Rotation())
sketch7.addGeometry(Part.LineSegment(V(-165, 46, 0), V(-165, 16, 0)), False)
sketch7.addGeometry(Part.LineSegment(V(-165, 16, 0), V(-161, 16, 0)), False)
sketch7.addGeometry(Part.LineSegment(V(-161, 16, 0), V(-161, 46, 0)), False)
sketch7.addGeometry(Part.LineSegment(V(-161, 46, 0), V(-165, 46, 0)), False)
sketch7.addGeometry(Part.LineSegment(V(-165, -16, 0), V(-165, -46, 0)), False)
sketch7.addGeometry(Part.LineSegment(V(-165, -46, 0), V(-161, -46, 0)), False)
sketch7.addGeometry(Part.LineSegment(V(-161, -46, 0), V(-161, -16, 0)), False)
sketch7.addGeometry(Part.LineSegment(V(-161, -16, 0), V(-165, -16, 0)), False)
sketch7.addGeometry(Part.LineSegment(V(161, -16, 0), V(161, -46, 0)), False)
sketch7.addGeometry(Part.LineSegment(V(161, -46, 0), V(165, -46, 0)), False)
sketch7.addGeometry(Part.LineSegment(V(165, -46, 0), V(165, -16, 0)), False)
sketch7.addGeometry(Part.LineSegment(V(165, -16, 0), V(161, -16, 0)), False)
sketch7.addGeometry(Part.LineSegment(V(161, 46, 0), V(161, 16, 0)), False)
sketch7.addGeometry(Part.LineSegment(V(161, 16, 0), V(165, 16, 0)), False)
sketch7.addGeometry(Part.LineSegment(V(165, 16, 0), V(165, 46, 0)), False)
sketch7.addGeometry(Part.LineSegment(V(165, 46, 0), V(161, 46, 0)), False)
sketch7.addGeometry(Part.LineSegment(V(-30, -16, 0), V(-30, -46, 0)), False)
sketch7.addGeometry(Part.LineSegment(V(-30, -46, 0), V(-26, -46, 0)), False)
sketch7.addGeometry(Part.LineSegment(V(-26, -46, 0), V(-26, -16, 0)), False)
sketch7.addGeometry(Part.LineSegment(V(-26, -16, 0), V(-30, -16, 0)), False)
sketch7.addGeometry(Part.LineSegment(V(-30, 46, 0), V(-30, 16, 0)), False)
sketch7.addGeometry(Part.LineSegment(V(-30, 16, 0), V(-26, 16, 0)), False)
sketch7.addGeometry(Part.LineSegment(V(-26, 16, 0), V(-26, 46, 0)), False)
sketch7.addGeometry(Part.LineSegment(V(-26, 46, 0), V(-30, 46, 0)), False)
sketch7.addGeometry(Part.LineSegment(V(26, -16, 0), V(26, -46, 0)), False)
sketch7.addGeometry(Part.LineSegment(V(26, -46, 0), V(30, -46, 0)), False)
sketch7.addGeometry(Part.LineSegment(V(30, -46, 0), V(30, -16, 0)), False)
sketch7.addGeometry(Part.LineSegment(V(30, -16, 0), V(26, -16, 0)), False)
sketch7.addGeometry(Part.LineSegment(V(26, 46, 0), V(26, 16, 0)), False)
sketch7.addGeometry(Part.LineSegment(V(26, 16, 0), V(30, 16, 0)), False)
sketch7.addGeometry(Part.LineSegment(V(30, 16, 0), V(30, 46, 0)), False)
sketch7.addGeometry(Part.LineSegment(V(30, 46, 0), V(26, 46, 0)), False)
sketch7.addConstraint(Sketcher.Constraint("Coincident", 0, 2, 1, 1))
sketch7.addConstraint(Sketcher.Constraint("Coincident", 1, 2, 2, 1))
sketch7.addConstraint(Sketcher.Constraint("Coincident", 2, 2, 3, 1))
sketch7.addConstraint(Sketcher.Constraint("Coincident", 3, 2, 0, 1))
sketch7.addConstraint(Sketcher.Constraint("Coincident", 4, 2, 5, 1))
sketch7.addConstraint(Sketcher.Constraint("Coincident", 5, 2, 6, 1))
sketch7.addConstraint(Sketcher.Constraint("Coincident", 6, 2, 7, 1))
sketch7.addConstraint(Sketcher.Constraint("Coincident", 7, 2, 4, 1))
sketch7.addConstraint(Sketcher.Constraint("Coincident", 8, 2, 9, 1))
sketch7.addConstraint(Sketcher.Constraint("Coincident", 9, 2, 10, 1))
sketch7.addConstraint(Sketcher.Constraint("Coincident", 10, 2, 11, 1))
sketch7.addConstraint(Sketcher.Constraint("Coincident", 11, 2, 8, 1))
sketch7.addConstraint(Sketcher.Constraint("Coincident", 12, 2, 13, 1))
sketch7.addConstraint(Sketcher.Constraint("Coincident", 13, 2, 14, 1))
sketch7.addConstraint(Sketcher.Constraint("Coincident", 14, 2, 15, 1))
sketch7.addConstraint(Sketcher.Constraint("Coincident", 15, 2, 12, 1))
sketch7.addConstraint(Sketcher.Constraint("Coincident", 16, 2, 17, 1))
sketch7.addConstraint(Sketcher.Constraint("Coincident", 17, 2, 18, 1))
sketch7.addConstraint(Sketcher.Constraint("Coincident", 18, 2, 19, 1))
sketch7.addConstraint(Sketcher.Constraint("Coincident", 19, 2, 16, 1))
sketch7.addConstraint(Sketcher.Constraint("Coincident", 20, 2, 21, 1))
sketch7.addConstraint(Sketcher.Constraint("Coincident", 21, 2, 22, 1))
sketch7.addConstraint(Sketcher.Constraint("Coincident", 22, 2, 23, 1))
sketch7.addConstraint(Sketcher.Constraint("Coincident", 23, 2, 20, 1))
sketch7.addConstraint(Sketcher.Constraint("Coincident", 24, 2, 25, 1))
sketch7.addConstraint(Sketcher.Constraint("Coincident", 25, 2, 26, 1))
sketch7.addConstraint(Sketcher.Constraint("Coincident", 26, 2, 27, 1))
sketch7.addConstraint(Sketcher.Constraint("Coincident", 27, 2, 24, 1))
sketch7.addConstraint(Sketcher.Constraint("Coincident", 28, 2, 29, 1))
sketch7.addConstraint(Sketcher.Constraint("Coincident", 29, 2, 30, 1))
sketch7.addConstraint(Sketcher.Constraint("Coincident", 30, 2, 31, 1))
sketch7.addConstraint(Sketcher.Constraint("Coincident", 31, 2, 28, 1))
sketch7.addConstraint(Sketcher.Constraint("Vertical", 0))
sketch7.addConstraint(Sketcher.Constraint("Horizontal", 1))
sketch7.addConstraint(Sketcher.Constraint("Vertical", 2))
sketch7.addConstraint(Sketcher.Constraint("Horizontal", 3))
sketch7.addConstraint(Sketcher.Constraint("Vertical", 4))
sketch7.addConstraint(Sketcher.Constraint("Horizontal", 5))
sketch7.addConstraint(Sketcher.Constraint("Vertical", 6))
sketch7.addConstraint(Sketcher.Constraint("Horizontal", 7))
sketch7.addConstraint(Sketcher.Constraint("Vertical", 8))
sketch7.addConstraint(Sketcher.Constraint("Horizontal", 9))
sketch7.addConstraint(Sketcher.Constraint("Vertical", 10))
sketch7.addConstraint(Sketcher.Constraint("Horizontal", 11))
sketch7.addConstraint(Sketcher.Constraint("Vertical", 12))
sketch7.addConstraint(Sketcher.Constraint("Horizontal", 13))
sketch7.addConstraint(Sketcher.Constraint("Vertical", 14))
sketch7.addConstraint(Sketcher.Constraint("Horizontal", 15))
sketch7.addConstraint(Sketcher.Constraint("Vertical", 16))
sketch7.addConstraint(Sketcher.Constraint("Horizontal", 17))
sketch7.addConstraint(Sketcher.Constraint("Vertical", 18))
sketch7.addConstraint(Sketcher.Constraint("Horizontal", 19))
sketch7.addConstraint(Sketcher.Constraint("Vertical", 20))
sketch7.addConstraint(Sketcher.Constraint("Horizontal", 21))
sketch7.addConstraint(Sketcher.Constraint("Vertical", 22))
sketch7.addConstraint(Sketcher.Constraint("Horizontal", 23))
sketch7.addConstraint(Sketcher.Constraint("Vertical", 24))
sketch7.addConstraint(Sketcher.Constraint("Horizontal", 25))
sketch7.addConstraint(Sketcher.Constraint("Vertical", 26))
sketch7.addConstraint(Sketcher.Constraint("Horizontal", 27))
sketch7.addConstraint(Sketcher.Constraint("Vertical", 28))
sketch7.addConstraint(Sketcher.Constraint("Horizontal", 29))
sketch7.addConstraint(Sketcher.Constraint("Vertical", 30))
sketch7.addConstraint(Sketcher.Constraint("Horizontal", 31))
sketch7.addConstraint(Sketcher.Constraint("Symmetric", 2, 2, 8, 2, -1, 1))
sketch7.addConstraint(Sketcher.Constraint("Symmetric", 0, 2, 10, 2, -1, 1))
sketch7.addConstraint(Sketcher.Constraint("Symmetric", 6, 2, 12, 2, -1, 1))
sketch7.addConstraint(Sketcher.Constraint("Symmetric", 4, 2, 14, 2, -1, 1))
sketch7.addConstraint(Sketcher.Constraint("Symmetric", 22, 2, 24, 2, -1, 1))
sketch7.addConstraint(Sketcher.Constraint("Symmetric", 20, 2, 26, 2, -1, 1))
sketch7.addConstraint(Sketcher.Constraint("Symmetric", 18, 2, 28, 2, -1, 1))
sketch7.addConstraint(Sketcher.Constraint("Symmetric", 16, 2, 30, 2, -1, 1))
sketch7.addConstraint(Sketcher.Constraint("Symmetric", 5, 2, 8, 2, -2))
sketch7.addConstraint(Sketcher.Constraint("Symmetric", 7, 2, 10, 2, -2))
sketch7.addConstraint(Sketcher.Constraint("Symmetric", 17, 2, 24, 2, -2))
sketch7.addConstraint(Sketcher.Constraint("Symmetric", 19, 2, 26, 2, -2))
sketch7.addConstraint(Sketcher.Constraint("Horizontal", 9, 2, 16, 2))
sketch7.addConstraint(Sketcher.Constraint("Horizontal", 11, 2, 18, 2))
sketch7.addConstraint(Sketcher.Constraint("Equal", 15, 17))
sketch7.addConstraint(Sketcher.Constraint("DistanceX", 1, 1, 1, 2, 4.0))
sketch7.addConstraint(Sketcher.Constraint("DistanceY", 0, 2, 0, 1, 30.0))
sketch7.addConstraint(Sketcher.Constraint("DistanceX", 0, 2, -1, 1, 165.0))
sketch7.addConstraint(Sketcher.Constraint("DistanceY", -1, 1, 0, 2, 16.0))
sketch7.addConstraint(Sketcher.Constraint("DistanceX", 16, 2, -1, 1, 30.0))
pocket5 = body.newObject("PartDesign::Pocket", "Pocket004")
pocket5.Profile = sketch7
pocket5.Type = "ThroughAll"

doc.recompute()
